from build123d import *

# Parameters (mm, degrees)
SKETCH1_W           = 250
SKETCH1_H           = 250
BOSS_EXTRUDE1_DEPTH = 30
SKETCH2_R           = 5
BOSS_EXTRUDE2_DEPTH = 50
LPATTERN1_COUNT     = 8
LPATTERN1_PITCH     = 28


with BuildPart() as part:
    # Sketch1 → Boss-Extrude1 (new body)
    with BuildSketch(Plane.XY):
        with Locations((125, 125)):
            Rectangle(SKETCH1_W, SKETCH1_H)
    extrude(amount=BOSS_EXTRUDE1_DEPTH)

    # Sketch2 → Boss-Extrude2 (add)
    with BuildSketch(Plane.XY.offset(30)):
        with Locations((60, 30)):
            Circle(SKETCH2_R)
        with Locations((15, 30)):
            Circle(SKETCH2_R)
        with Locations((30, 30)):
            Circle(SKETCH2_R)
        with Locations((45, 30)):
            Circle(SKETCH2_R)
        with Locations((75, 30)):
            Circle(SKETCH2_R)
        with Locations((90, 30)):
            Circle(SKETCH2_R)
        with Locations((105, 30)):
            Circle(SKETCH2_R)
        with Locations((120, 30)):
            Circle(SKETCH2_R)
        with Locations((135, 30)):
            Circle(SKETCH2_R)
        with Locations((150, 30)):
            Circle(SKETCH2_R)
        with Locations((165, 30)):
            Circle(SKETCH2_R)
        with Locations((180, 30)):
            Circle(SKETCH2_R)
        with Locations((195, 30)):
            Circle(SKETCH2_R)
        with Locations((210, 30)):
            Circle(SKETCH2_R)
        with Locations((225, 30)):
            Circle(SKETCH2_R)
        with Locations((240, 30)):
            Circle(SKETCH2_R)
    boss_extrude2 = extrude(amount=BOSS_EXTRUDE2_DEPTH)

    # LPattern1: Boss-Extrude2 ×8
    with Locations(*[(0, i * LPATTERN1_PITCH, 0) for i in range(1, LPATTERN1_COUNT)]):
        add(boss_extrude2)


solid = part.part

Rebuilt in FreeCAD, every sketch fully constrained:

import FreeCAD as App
import Part
import Sketcher
from FreeCAD import Vector


def add_polygon(sketch, points):
    """Adds a closed chain of lines whose ends are joined by coincident constraints."""
    first, n = sketch.GeometryCount, len(points)
    for a, b in zip(points, points[1:] + points[:1]):
        sketch.addGeometry(Part.LineSegment(App.Vector(*a, 0), App.Vector(*b, 0)), False)
    for i in range(n):
        sketch.addConstraint(Sketcher.Constraint("Coincident", first + i, 2, first + (i + 1) % n, 1))

doc = App.newDocument("Part")
body = doc.addObject("PartDesign::Body", "Body")

# Sketch on XY plane
sketch1 = doc.addObject("Sketcher::SketchObject", "Sketch")
body.addObject(sketch1)
sketch1.AttachmentSupport = (doc.XY_Plane, [""])
sketch1.MapMode = "FlatFace"
add_polygon(sketch1, [(0, 250), (0, 0), (250, 0), (250, 250)])  # lines 0-3
sketch1.addConstraint([
    Sketcher.Constraint("Vertical", 0),
    Sketcher.Constraint("Horizontal", 1),
    Sketcher.Constraint("Vertical", 2),
    Sketcher.Constraint("Horizontal", 3),
    Sketcher.Constraint("Coincident", 0, 2, -1, 1),
    Sketcher.Constraint("Equal", 3, 0),
    Sketcher.Constraint("DistanceX", 1, 1, 1, 2, 250.0),
])
pad1 = doc.addObject("PartDesign::Pad", "Pad")
body.addObject(pad1)
pad1.Profile = sketch1
pad1.Length = 30

# Sketch on XY plane
sketch2 = doc.addObject("Sketcher::SketchObject", "Sketch001")
body.addObject(sketch2)
sketch2.AttachmentSupport = (doc.XY_Plane, [""])
sketch2.MapMode = "FlatFace"
sketch2.AttachmentOffset = App.Placement(Vector(0, 0, 30), App.Rotation())
sketch2.addGeometry([
    Part.Circle(Vector(60, 30, 0), Vector(0, 0, 1), 5),  # 0
    Part.Circle(Vector(15, 30, 0), Vector(0, 0, 1), 5),  # 1
    Part.Circle(Vector(30, 30, 0), Vector(0, 0, 1), 5),  # 2
    Part.Circle(Vector(45, 30, 0), Vector(0, 0, 1), 5),  # 3
    Part.Circle(Vector(75, 30, 0), Vector(0, 0, 1), 5),  # 4
    Part.Circle(Vector(90, 30, 0), Vector(0, 0, 1), 5),  # 5
    Part.Circle(Vector(105, 30, 0), Vector(0, 0, 1), 5),  # 6
    Part.Circle(Vector(120, 30, 0), Vector(0, 0, 1), 5),  # 7
    Part.Circle(Vector(135, 30, 0), Vector(0, 0, 1), 5),  # 8
    Part.Circle(Vector(150, 30, 0), Vector(0, 0, 1), 5),  # 9
    Part.Circle(Vector(165, 30, 0), Vector(0, 0, 1), 5),  # 10
    Part.Circle(Vector(180, 30, 0), Vector(0, 0, 1), 5),  # 11
    Part.Circle(Vector(195, 30, 0), Vector(0, 0, 1), 5),  # 12
    Part.Circle(Vector(210, 30, 0), Vector(0, 0, 1), 5),  # 13
    Part.Circle(Vector(225, 30, 0), Vector(0, 0, 1), 5),  # 14
    Part.Circle(Vector(240, 30, 0), Vector(0, 0, 1), 5),  # 15
], False)
sketch2.addConstraint([
    Sketcher.Constraint("Equal", 0, 1),
    Sketcher.Constraint("Equal", 1, 2),
    Sketcher.Constraint("Equal", 2, 3),
    Sketcher.Constraint("Equal", 3, 4),
    Sketcher.Constraint("Equal", 4, 5),
    Sketcher.Constraint("Equal", 5, 6),
    Sketcher.Constraint("Equal", 6, 7),
    Sketcher.Constraint("Equal", 7, 8),
    Sketcher.Constraint("Equal", 8, 9),
    Sketcher.Constraint("Equal", 9, 10),
    Sketcher.Constraint("Equal", 10, 11),
    Sketcher.Constraint("Equal", 11, 12),
    Sketcher.Constraint("Equal", 12, 13),
    Sketcher.Constraint("Equal", 13, 14),
    Sketcher.Constraint("Equal", 14, 15),
    Sketcher.Constraint("Horizontal", 0, 3, 1, 3),
    Sketcher.Constraint("Horizontal", 1, 3, 2, 3),
    Sketcher.Constraint("Horizontal", 2, 3, 3, 3),
    Sketcher.Constraint("Horizontal", 3, 3, 4, 3),
    Sketcher.Constraint("Horizontal", 4, 3, 5, 3),
    Sketcher.Constraint("Horizontal", 5, 3, 6, 3),
    Sketcher.Constraint("Horizontal", 6, 3, 7, 3),
    Sketcher.Constraint("Horizontal", 7, 3, 8, 3),
    Sketcher.Constraint("Horizontal", 8, 3, 9, 3),
    Sketcher.Constraint("Horizontal", 9, 3, 10, 3),
    Sketcher.Constraint("Horizontal", 10, 3, 11, 3),
    Sketcher.Constraint("Horizontal", 11, 3, 12, 3),
    Sketcher.Constraint("Horizontal", 12, 3, 13, 3),
    Sketcher.Constraint("Horizontal", 13, 3, 14, 3),
    Sketcher.Constraint("Horizontal", 14, 3, 15, 3),
    Sketcher.Constraint("Diameter", 0, 10.0),
    Sketcher.Constraint("DistanceX", -1, 1, 0, 3, 60.0),
    Sketcher.Constraint("DistanceY", -1, 1, 0, 3, 30.0),
    Sketcher.Constraint("DistanceX", -1, 1, 1, 3, 15.0),
    Sketcher.Constraint("DistanceX", -1, 1, 2, 3, 30.0),
    Sketcher.Constraint("DistanceX", -1, 1, 3, 3, 45.0),
    Sketcher.Constraint("DistanceX", -1, 1, 4, 3, 75.0),
    Sketcher.Constraint("DistanceX", -1, 1, 5, 3, 90.0),
    Sketcher.Constraint("DistanceX", -1, 1, 6, 3, 105.0),
    Sketcher.Constraint("DistanceX", -1, 1, 7, 3, 120.0),
    Sketcher.Constraint("DistanceX", -1, 1, 8, 3, 135.0),
    Sketcher.Constraint("DistanceX", -1, 1, 9, 3, 150.0),
    Sketcher.Constraint("DistanceX", -1, 1, 10, 3, 165.0),
    Sketcher.Constraint("DistanceX", -1, 1, 11, 3, 180.0),
    Sketcher.Constraint("DistanceX", -1, 1, 12, 3, 195.0),
    Sketcher.Constraint("DistanceX", -1, 1, 13, 3, 210.0),
    Sketcher.Constraint("DistanceX", -1, 1, 14, 3, 225.0),
    Sketcher.Constraint("DistanceX", -1, 1, 15, 3, 240.0),
])
pad2 = doc.addObject("PartDesign::Pad", "Pad001")
body.addObject(pad2)
pad2.Profile = sketch2
pad2.Length = 50
doc.recompute()

linearpattern = doc.addObject("PartDesign::LinearPattern", "LinearPattern")
body.addObject(linearpattern)
linearpattern.Originals = [pad2]
linearpattern.Direction = (doc.Y_Axis, [""])
linearpattern.Mode = "offset"
linearpattern.Offset = 28
linearpattern.Occurrences = 8
body.Tip = linearpattern

doc.recompute()
